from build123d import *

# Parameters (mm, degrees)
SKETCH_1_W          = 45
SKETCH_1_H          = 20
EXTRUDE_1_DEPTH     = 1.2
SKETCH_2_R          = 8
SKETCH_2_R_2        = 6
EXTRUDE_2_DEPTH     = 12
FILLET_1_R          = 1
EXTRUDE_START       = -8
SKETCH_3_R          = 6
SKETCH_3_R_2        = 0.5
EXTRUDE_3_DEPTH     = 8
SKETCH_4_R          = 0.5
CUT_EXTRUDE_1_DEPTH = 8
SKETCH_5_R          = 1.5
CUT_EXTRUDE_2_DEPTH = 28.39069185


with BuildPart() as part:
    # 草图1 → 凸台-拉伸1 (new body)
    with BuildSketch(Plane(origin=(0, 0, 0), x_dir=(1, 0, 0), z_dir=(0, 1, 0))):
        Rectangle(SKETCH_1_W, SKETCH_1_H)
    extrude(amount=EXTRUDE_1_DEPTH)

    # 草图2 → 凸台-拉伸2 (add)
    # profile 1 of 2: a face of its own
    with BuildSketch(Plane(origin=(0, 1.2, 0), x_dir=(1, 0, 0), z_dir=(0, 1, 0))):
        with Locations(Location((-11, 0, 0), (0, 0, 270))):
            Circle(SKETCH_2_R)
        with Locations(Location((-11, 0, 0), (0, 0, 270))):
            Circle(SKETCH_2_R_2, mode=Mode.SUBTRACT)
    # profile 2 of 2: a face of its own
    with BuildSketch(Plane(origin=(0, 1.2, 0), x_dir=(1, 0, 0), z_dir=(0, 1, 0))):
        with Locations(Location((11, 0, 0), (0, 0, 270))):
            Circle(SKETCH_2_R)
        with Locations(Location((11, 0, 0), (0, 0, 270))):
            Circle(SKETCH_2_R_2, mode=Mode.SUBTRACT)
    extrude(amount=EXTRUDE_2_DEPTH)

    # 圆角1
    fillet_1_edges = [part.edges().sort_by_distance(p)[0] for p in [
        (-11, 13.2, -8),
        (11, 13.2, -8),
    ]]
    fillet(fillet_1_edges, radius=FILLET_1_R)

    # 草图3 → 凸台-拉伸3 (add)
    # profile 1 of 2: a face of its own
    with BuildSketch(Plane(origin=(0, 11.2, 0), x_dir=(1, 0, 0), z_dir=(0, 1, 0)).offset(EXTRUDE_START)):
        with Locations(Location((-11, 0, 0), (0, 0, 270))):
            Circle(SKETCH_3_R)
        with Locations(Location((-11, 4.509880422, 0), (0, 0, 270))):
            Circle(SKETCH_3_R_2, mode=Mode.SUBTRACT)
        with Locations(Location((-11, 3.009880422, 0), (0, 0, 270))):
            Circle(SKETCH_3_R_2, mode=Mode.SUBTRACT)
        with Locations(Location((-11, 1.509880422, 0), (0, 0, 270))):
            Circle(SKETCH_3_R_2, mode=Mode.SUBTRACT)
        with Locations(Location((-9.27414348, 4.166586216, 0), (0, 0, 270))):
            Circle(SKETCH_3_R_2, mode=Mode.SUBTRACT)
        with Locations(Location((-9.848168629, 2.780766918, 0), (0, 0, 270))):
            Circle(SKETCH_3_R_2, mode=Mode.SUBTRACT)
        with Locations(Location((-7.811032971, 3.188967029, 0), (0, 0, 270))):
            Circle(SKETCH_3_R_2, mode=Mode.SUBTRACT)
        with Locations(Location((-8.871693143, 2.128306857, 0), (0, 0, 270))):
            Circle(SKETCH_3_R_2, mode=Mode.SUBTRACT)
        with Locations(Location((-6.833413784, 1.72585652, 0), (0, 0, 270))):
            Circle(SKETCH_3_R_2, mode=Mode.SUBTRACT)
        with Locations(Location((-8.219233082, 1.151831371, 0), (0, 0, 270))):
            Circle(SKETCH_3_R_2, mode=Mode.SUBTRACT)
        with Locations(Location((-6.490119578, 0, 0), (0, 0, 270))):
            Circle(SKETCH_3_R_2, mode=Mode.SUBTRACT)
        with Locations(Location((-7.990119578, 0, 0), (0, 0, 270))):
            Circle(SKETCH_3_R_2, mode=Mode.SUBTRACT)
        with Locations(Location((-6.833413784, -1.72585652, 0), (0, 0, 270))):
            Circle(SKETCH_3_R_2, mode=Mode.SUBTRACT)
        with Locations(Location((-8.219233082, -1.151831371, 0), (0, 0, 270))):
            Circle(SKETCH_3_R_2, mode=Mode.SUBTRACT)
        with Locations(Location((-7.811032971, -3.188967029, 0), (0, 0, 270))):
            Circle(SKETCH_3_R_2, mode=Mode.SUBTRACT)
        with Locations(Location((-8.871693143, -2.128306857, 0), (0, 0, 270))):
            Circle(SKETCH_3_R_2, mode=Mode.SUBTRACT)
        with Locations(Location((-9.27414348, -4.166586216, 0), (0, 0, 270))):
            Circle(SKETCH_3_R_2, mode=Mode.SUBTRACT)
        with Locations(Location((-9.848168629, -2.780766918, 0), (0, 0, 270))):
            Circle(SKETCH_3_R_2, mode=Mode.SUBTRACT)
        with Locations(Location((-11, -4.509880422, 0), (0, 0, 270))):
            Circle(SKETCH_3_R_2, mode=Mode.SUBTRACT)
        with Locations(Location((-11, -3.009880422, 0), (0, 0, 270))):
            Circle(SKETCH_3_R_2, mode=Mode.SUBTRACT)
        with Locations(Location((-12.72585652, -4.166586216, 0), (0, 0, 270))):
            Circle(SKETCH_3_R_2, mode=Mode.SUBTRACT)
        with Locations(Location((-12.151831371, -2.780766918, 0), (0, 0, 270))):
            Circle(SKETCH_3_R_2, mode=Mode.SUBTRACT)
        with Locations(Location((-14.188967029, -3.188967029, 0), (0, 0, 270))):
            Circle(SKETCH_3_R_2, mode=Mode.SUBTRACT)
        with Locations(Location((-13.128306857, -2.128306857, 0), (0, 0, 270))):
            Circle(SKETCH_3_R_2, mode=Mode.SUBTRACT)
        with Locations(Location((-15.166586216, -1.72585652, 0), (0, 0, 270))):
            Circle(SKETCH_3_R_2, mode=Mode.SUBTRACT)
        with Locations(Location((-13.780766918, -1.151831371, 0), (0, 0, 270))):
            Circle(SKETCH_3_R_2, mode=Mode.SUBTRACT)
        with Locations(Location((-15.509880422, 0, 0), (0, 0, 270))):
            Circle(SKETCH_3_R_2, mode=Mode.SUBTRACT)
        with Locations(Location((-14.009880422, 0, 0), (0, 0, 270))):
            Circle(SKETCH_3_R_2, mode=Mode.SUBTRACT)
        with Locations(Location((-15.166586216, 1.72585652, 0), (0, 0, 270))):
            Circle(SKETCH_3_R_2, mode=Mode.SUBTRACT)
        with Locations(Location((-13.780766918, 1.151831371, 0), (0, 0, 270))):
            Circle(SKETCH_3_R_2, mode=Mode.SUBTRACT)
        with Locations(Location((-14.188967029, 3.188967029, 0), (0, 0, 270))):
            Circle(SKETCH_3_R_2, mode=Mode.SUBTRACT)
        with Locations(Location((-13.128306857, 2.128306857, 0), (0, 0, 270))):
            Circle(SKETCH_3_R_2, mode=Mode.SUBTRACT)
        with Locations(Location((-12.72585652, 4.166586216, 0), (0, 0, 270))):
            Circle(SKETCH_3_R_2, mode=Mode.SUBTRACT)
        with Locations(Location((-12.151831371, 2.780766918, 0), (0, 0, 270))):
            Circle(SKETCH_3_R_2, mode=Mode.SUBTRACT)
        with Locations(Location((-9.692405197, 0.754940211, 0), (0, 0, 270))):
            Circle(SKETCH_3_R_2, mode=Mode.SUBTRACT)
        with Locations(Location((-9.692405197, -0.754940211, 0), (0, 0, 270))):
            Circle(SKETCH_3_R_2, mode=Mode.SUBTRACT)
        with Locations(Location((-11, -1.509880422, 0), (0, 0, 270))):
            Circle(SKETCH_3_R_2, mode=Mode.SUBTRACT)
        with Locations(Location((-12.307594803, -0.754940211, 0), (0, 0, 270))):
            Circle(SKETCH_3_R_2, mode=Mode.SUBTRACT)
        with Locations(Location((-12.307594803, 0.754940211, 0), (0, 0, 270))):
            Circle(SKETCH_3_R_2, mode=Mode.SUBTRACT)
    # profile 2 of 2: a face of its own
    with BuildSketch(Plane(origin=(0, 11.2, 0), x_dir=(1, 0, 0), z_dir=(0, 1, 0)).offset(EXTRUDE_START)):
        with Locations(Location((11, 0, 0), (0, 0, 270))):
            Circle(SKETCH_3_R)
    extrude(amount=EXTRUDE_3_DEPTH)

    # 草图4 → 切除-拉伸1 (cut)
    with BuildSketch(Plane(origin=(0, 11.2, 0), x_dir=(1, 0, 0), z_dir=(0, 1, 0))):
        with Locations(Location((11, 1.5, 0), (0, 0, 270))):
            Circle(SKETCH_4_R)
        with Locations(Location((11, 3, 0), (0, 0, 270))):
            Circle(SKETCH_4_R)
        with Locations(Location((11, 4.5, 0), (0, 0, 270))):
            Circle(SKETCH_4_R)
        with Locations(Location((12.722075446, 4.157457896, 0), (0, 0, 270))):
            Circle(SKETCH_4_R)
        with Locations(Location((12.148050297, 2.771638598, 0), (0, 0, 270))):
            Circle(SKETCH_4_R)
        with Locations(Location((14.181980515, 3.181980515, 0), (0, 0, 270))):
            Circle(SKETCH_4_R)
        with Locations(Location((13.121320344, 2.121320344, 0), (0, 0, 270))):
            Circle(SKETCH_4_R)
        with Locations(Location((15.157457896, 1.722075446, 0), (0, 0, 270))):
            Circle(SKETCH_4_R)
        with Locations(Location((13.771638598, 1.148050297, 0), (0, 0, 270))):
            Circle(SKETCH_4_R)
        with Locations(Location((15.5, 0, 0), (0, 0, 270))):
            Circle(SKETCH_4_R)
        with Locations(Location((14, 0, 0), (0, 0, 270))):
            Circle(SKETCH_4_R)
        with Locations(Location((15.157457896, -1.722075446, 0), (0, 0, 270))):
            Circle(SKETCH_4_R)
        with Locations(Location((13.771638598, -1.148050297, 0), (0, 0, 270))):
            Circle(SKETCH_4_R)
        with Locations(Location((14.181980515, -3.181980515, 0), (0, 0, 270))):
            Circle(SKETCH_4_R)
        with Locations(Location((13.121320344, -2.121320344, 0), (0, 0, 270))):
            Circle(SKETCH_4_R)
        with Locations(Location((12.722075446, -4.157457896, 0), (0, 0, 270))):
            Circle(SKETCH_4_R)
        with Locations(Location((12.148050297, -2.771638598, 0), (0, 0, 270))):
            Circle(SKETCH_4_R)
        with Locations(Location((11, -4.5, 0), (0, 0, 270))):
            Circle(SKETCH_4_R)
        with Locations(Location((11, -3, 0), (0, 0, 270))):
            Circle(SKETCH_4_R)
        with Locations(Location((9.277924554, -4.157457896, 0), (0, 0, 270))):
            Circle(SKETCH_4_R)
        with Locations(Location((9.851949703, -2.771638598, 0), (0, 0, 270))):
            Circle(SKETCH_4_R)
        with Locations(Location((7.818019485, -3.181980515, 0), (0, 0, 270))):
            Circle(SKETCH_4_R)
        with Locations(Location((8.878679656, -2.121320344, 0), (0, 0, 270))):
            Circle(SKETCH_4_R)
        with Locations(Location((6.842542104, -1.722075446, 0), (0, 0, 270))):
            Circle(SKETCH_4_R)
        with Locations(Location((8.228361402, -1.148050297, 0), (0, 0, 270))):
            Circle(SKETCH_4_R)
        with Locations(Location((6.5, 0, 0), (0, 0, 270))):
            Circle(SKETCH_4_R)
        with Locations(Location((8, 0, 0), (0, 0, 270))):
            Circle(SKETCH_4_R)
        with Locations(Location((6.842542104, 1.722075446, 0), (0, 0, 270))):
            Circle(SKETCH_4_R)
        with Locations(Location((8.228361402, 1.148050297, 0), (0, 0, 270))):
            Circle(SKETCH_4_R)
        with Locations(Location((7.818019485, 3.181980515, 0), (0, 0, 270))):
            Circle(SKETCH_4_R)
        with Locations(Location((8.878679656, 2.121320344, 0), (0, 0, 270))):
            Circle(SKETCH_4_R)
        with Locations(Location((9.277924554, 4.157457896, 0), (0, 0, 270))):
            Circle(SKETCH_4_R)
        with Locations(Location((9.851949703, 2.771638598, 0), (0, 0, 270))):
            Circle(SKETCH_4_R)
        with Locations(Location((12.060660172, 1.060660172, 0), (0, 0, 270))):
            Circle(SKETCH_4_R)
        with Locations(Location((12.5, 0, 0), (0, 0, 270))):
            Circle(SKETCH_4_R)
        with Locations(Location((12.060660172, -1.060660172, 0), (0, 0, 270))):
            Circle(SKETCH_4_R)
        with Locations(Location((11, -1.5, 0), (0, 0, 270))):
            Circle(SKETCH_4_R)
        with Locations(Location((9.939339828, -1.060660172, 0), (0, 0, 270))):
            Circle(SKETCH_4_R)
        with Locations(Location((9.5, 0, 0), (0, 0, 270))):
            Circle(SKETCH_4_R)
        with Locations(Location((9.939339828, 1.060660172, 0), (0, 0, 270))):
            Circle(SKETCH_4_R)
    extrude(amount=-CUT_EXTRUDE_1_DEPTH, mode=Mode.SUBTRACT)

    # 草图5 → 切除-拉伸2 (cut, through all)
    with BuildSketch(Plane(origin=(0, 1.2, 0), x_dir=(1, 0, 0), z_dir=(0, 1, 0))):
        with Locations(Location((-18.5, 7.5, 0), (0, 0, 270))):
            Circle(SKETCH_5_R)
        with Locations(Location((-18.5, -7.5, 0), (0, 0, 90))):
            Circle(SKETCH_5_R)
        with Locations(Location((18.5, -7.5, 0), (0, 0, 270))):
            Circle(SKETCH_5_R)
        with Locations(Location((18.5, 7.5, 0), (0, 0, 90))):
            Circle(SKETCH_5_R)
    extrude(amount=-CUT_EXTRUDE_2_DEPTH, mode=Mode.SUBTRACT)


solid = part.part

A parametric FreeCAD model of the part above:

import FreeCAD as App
import Part
import Sketcher
from FreeCAD import Vector


def edges_at(feature, points):
    """Names of the edges that pass closest to the given points."""
    edges = feature.Shape.Edges
    near = lambda p: min(range(len(edges)), key=lambda i: edges[i].distToShape(Part.Vertex(*p))[0])
    return sorted({f"Edge{near(p) + 1}" for p in points})

doc = App.newDocument("Part")
body = doc.addObject("PartDesign::Body", "Body")

# Sketch on XZ plane
sketch1 = body.newObject("Sketcher::SketchObject", "Sketch")
sketch1.AttachmentSupport = (doc.getObject("XZ_Plane"), [""])
sketch1.MapMode = "FlatFace"
sketch1.addGeometry([
    Part.LineSegment(Vector(-22, -10, 0), Vector(-22, 10, 0)),
    Part.LineSegment(Vector(-22, 10, 0), Vector(22, 10, 0)),
    Part.LineSegment(Vector(22, 10, 0), Vector(22, -10, 0)),
    Part.LineSegment(Vector(22, -10, 0), Vector(-22, -10, 0)),
], False)
sketch1.addConstraint([
    Sketcher.Constraint("Coincident", 0, 2, 1, 1),
    Sketcher.Constraint("Coincident", 1, 2, 2, 1),
    Sketcher.Constraint("Coincident", 2, 2, 3, 1),
    Sketcher.Constraint("Coincident", 3, 2, 0, 1),
    Sketcher.Constraint("Vertical", 0),
    Sketcher.Constraint("Horizontal", 1),
    Sketcher.Constraint("Vertical", 2),
    Sketcher.Constraint("Horizontal", 3),
    Sketcher.Constraint("Symmetric", 0, 2, 2, 2, -1, 1),
    Sketcher.Constraint("DistanceX", 1, 1, 1, 2, 45.0),
    Sketcher.Constraint("DistanceY", 0, 1, 0, 2, 20.0),
])
pad1 = body.newObject("PartDesign::Pad", "Pad")
pad1.Profile = sketch1
pad1.Length = 1.2
pad1.Reversed = True

# Sketch on XZ plane
sketch2 = body.newObject("Sketcher::SketchObject", "Sketch001")
sketch2.AttachmentSupport = (doc.getObject("XZ_Plane"), [""])
sketch2.MapMode = "FlatFace"
sketch2.AttachmentOffset = App.Placement(Vector(0, 0, -1.2), App.Rotation())
sketch2.addGeometry([
    Part.Circle(Vector(-11, 0, 0), Vector(0, 0, 1), 8),
    Part.Circle(Vector(-11, 0, 0), Vector(0, 0, 1), 6),
    Part.Circle(Vector(11, 0, 0), Vector(0, 0, 1), 8),
    Part.Circle(Vector(11, 0, 0), Vector(0, 0, 1), 6),
], False)
sketch2.addConstraint([
    Sketcher.Constraint("Coincident", 1, 3, 0, 3),
    Sketcher.Constraint("Coincident", 3, 3, 2, 3),
    Sketcher.Constraint("Equal", 0, 2),
    Sketcher.Constraint("Equal", 1, 3),
    Sketcher.Constraint("Symmetric", 0, 3, 2, 3, -1, 1),
    Sketcher.Constraint("PointOnObject", 0, 3, -1),
    Sketcher.Constraint("Diameter", 0, 16.0),
    Sketcher.Constraint("Diameter", 1, 12.0),
    Sketcher.Constraint("DistanceX", 0, 3, -1, 1, 11.0),
])
pad2 = body.newObject("PartDesign::Pad", "Pad001")
pad2.Profile = sketch2
pad2.Length = 12
pad2.Reversed = True
doc.recompute()

fillet = body.newObject("PartDesign::Fillet", "Fillet")
fillet.Base = (pad2, edges_at(pad2, [(-11, 13.2, -8), (11, 13.2, -8)]))
fillet.Radius = 1

# Sketch on XZ plane
sketch3 = body.newObject("Sketcher::SketchObject", "Sketch002")
sketch3.AttachmentSupport = (doc.getObject("XZ_Plane"), [""])
sketch3.MapMode = "FlatFace"
sketch3.AttachmentOffset = App.Placement(Vector(0, 0, -3.2), App.Rotation())
sketch3.addGeometry([
    Part.Circle(Vector(-11, 0, 0), Vector(0, 0, 1), 6),  # 0
    Part.Circle(Vector(-14.2, -3.2, 0), Vector(0, 0, 1), 0.5),  # 1
    Part.Circle(Vector(-15.2, -1.7, 0), Vector(0, 0, 1), 0.5),  # 2
    Part.Circle(Vector(-13.8, -1.2, 0), Vector(0, 0, 1), 0.5),  # 3
    Part.Circle(Vector(-12.7, -4.2, 0), Vector(0, 0, 1), 0.5),  # 4
    Part.Circle(Vector(-11, -4.5, 0), Vector(0, 0, 1), 0.5),  # 5
    Part.Circle(Vector(-12.2, -2.8, 0), Vector(0, 0, 1), 0.5),  # 6
    Part.Circle(Vector(-11, -3, 0), Vector(0, 0, 1), 0.5),  # 7
    Part.Circle(Vector(-13.1, -2.1, 0), Vector(0, 0, 1), 0.5),  # 8
    Part.Circle(Vector(-12.3, -0.8, 0), Vector(0, 0, 1), 0.5),  # 9
    Part.Circle(Vector(-11, -1.5, 0), Vector(0, 0, 1), 0.5),  # 10
    Part.Circle(Vector(-15.5, 0, 0), Vector(0, 0, 1), 0.5),  # 11
    Part.Circle(Vector(-15.2, 1.7, 0), Vector(0, 0, 1), 0.5),  # 12
    Part.Circle(Vector(-14, 0, 0), Vector(0, 0, 1), 0.5),  # 13
    Part.Circle(Vector(-13.8, 1.2, 0), Vector(0, 0, 1), 0.5),  # 14
    Part.Circle(Vector(-14.2, 3.2, 0), Vector(0, 0, 1), 0.5),  # 15
    Part.Circle(Vector(-12.3, 0.8, 0), Vector(0, 0, 1), 0.5),  # 16
    Part.Circle(Vector(-13.1, 2.1, 0), Vector(0, 0, 1), 0.5),  # 17
    Part.Circle(Vector(-11, 1.5, 0), Vector(0, 0, 1), 0.5),  # 18
    Part.Circle(Vector(-12.7, 4.2, 0), Vector(0, 0, 1), 0.5),  # 19
    Part.Circle(Vector(-12.2, 2.8, 0), Vector(0, 0, 1), 0.5),  # 20
    Part.Circle(Vector(-11, 3, 0), Vector(0, 0, 1), 0.5),  # 21
    Part.Circle(Vector(-9.8, -2.8, 0), Vector(0, 0, 1), 0.5),  # 22
    Part.Circle(Vector(-9.3, -4.2, 0), Vector(0, 0, 1), 0.5),  # 23
    Part.Circle(Vector(-8.9, -2.1, 0), Vector(0, 0, 1), 0.5),  # 24
    Part.Circle(Vector(-9.7, -0.8, 0), Vector(0, 0, 1), 0.5),  # 25
    Part.Circle(Vector(-7.8, -3.2, 0), Vector(0, 0, 1), 0.5),  # 26
    Part.Circle(Vector(-8.2, -1.2, 0), Vector(0, 0, 1), 0.5),  # 27
    Part.Circle(Vector(-8, 0, 0), Vector(0, 0, 1), 0.5),  # 28
    Part.Circle(Vector(-6.8, -1.7, 0), Vector(0, 0, 1), 0.5),  # 29
    Part.Circle(Vector(-6.5, 0, 0), Vector(0, 0, 1), 0.5),  # 30
    Part.Circle(Vector(-9.7, 0.8, 0), Vector(0, 0, 1), 0.5),  # 31
    Part.Circle(Vector(-8.9, 2.1, 0), Vector(0, 0, 1), 0.5),  # 32
    Part.Circle(Vector(-9.8, 2.8, 0), Vector(0, 0, 1), 0.5),  # 33
    Part.Circle(Vector(-11, 4.5, 0), Vector(0, 0, 1), 0.5),  # 34
    Part.Circle(Vector(-9.3, 4.2, 0), Vector(0, 0, 1), 0.5),  # 35
    Part.Circle(Vector(-8.2, 1.2, 0), Vector(0, 0, 1), 0.5),  # 36
    Part.Circle(Vector(-6.8, 1.7, 0), Vector(0, 0, 1), 0.5),  # 37
    Part.Circle(Vector(-7.8, 3.2, 0), Vector(0, 0, 1), 0.5),  # 38
    Part.Circle(Vector(11, 0, 0), Vector(0, 0, 1), 6),  # 39
], False)
sketch3.addConstraint([
    Sketcher.Constraint("Equal", 1, 2),
    Sketcher.Constraint("Equal", 2, 3),
    Sketcher.Constraint("Equal", 3, 4),
    Sketcher.Constraint("Equal", 4, 5),
    Sketcher.Constraint("Equal", 5, 6),
    Sketcher.Constraint("Equal", 6, 7),
    Sketcher.Constraint("Equal", 7, 8),
    Sketcher.Constraint("Equal", 8, 9),
    Sketcher.Constraint("Equal", 9, 10),
    Sketcher.Constraint("Equal", 10, 11),
    Sketcher.Constraint("Equal", 11, 12),
    Sketcher.Constraint("Equal", 12, 13),
    Sketcher.Constraint("Equal", 13, 14),
    Sketcher.Constraint("Equal", 14, 15),
    Sketcher.Constraint("Equal", 15, 16),
    Sketcher.Constraint("Equal", 16, 17),
    Sketcher.Constraint("Equal", 17, 18),
    Sketcher.Constraint("Equal", 18, 19),
    Sketcher.Constraint("Equal", 19, 20),
    Sketcher.Constraint("Equal", 20, 21),
    Sketcher.Constraint("Equal", 21, 22),
    Sketcher.Constraint("Equal", 22, 23),
    Sketcher.Constraint("Equal", 23, 24),
    Sketcher.Constraint("Equal", 24, 25),
    Sketcher.Constraint("Equal", 25, 26),
    Sketcher.Constraint("Equal", 26, 27),
    Sketcher.Constraint("Equal", 27, 28),
    Sketcher.Constraint("Equal", 28, 29),
    Sketcher.Constraint("Equal", 29, 30),
    Sketcher.Constraint("Equal", 30, 31),
    Sketcher.Constraint("Equal", 31, 32),
    Sketcher.Constraint("Equal", 32, 33),
    Sketcher.Constraint("Equal", 33, 34),
    Sketcher.Constraint("Equal", 34, 35),
    Sketcher.Constraint("Equal", 35, 36),
    Sketcher.Constraint("Equal", 36, 37),
    Sketcher.Constraint("Equal", 37, 38),
    Sketcher.Constraint("Equal", 0, 39),
    Sketcher.Constraint("Symmetric", 0, 3, 39, 3, -1, 1),
    Sketcher.Constraint("Symmetric", 2, 3, 12, 3, -1),
    Sketcher.Constraint("Symmetric", 3, 3, 14, 3, -1),
    Sketcher.Constraint("Symmetric", 1, 3, 15, 3, -1),
    Sketcher.Constraint("Symmetric", 9, 3, 16, 3, -1),
    Sketcher.Constraint("Symmetric", 8, 3, 17, 3, -1),
    Sketcher.Constraint("Symmetric", 10, 3, 18, 3, -1),
    Sketcher.Constraint("Symmetric", 4, 3, 19, 3, -1),
    Sketcher.Constraint("Symmetric", 6, 3, 20, 3, -1),
    Sketcher.Constraint("Symmetric", 7, 3, 21, 3, -1),
    Sketcher.Constraint("Symmetric", 25, 3, 31, 3, -1),
    Sketcher.Constraint("Symmetric", 24, 3, 32, 3, -1),
    Sketcher.Constraint("Symmetric", 22, 3, 33, 3, -1),
    Sketcher.Constraint("Symmetric", 5, 3, 34, 3, -1),
    Sketcher.Constraint("Symmetric", 23, 3, 35, 3, -1),
    Sketcher.Constraint("Symmetric", 27, 3, 36, 3, -1),
    Sketcher.Constraint("Symmetric", 29, 3, 37, 3, -1),
    Sketcher.Constraint("Symmetric", 26, 3, 38, 3, -1),
    Sketcher.Constraint("PointOnObject", 0, 3, -1),
    Sketcher.Constraint("PointOnObject", 11, 3, -1),
    Sketcher.Constraint("PointOnObject", 13, 3, -1),
    Sketcher.Constraint("PointOnObject", 28, 3, -1),
    Sketcher.Constraint("PointOnObject", 30, 3, -1),
    Sketcher.Constraint("Horizontal", 6, 3, 22, 3),
    Sketcher.Constraint("Horizontal", 4, 3, 23, 3),
    Sketcher.Constraint("Horizontal", 8, 3, 24, 3),
    Sketcher.Constraint("Horizontal", 9, 3, 25, 3),
    Sketcher.Constraint("Horizontal", 1, 3, 26, 3),
    Sketcher.Constraint("Horizontal", 3, 3, 27, 3),
    Sketcher.Constraint("Horizontal", 2, 3, 29, 3),
    Sketcher.Constraint("Vertical", 0, 3, 5, 3),
    Sketcher.Constraint("Vertical", 5, 3, 7, 3),
    Sketcher.Constraint("Vertical", 7, 3, 10, 3),
    Sketcher.Constraint("Diameter", 0, 12.0),
    Sketcher.Constraint("Diameter", 1, 1.0),
    Sketcher.Constraint("DistanceX", 0, 3, -1, 1, 11.0),
    Sketcher.Constraint("DistanceY", 18, 3, 34, 3, 3.0),
    Sketcher.Constraint("DistanceY", 5, 3, 7, 3, 1.5),
    Sketcher.Constraint("DistanceX", 11, 3, 13, 3, 1.5),
    Sketcher.Constraint("DistanceX", 28, 3, 30, 3, 1.5),
    Sketcher.Constraint("DistanceX", 1, 3, 3, 3, 0.4082),
    Sketcher.Constraint("DistanceY", 1, 3, 6, 3, 0.4082),
    Sketcher.Constraint("DistanceY", 3, 3, 15, 3, 4.340798),
    Sketcher.Constraint("DistanceX", 27, 3, 26, 3, 0.4082),
    Sketcher.Constraint("DistanceY", 3, 3, -1, 1, 1.151831),
    Sketcher.Constraint("DistanceY", 5, 3, -1, 1, 4.50988),
    Sketcher.Constraint("DistanceX", 6, 3, -1, 1, 12.151831),
    Sketcher.Constraint("DistanceY", 9, 3, -1, 1, 0.75494),
    Sketcher.Constraint("DistanceX", 11, 3, -1, 1, 15.50988),
    Sketcher.Constraint("DistanceX", 22, 3, -1, 1, 9.848169),
    Sketcher.Constraint("DistanceX", 28, 3, -1, 1, 7.99012),
    Sketcher.Constraint("DistanceX", 2, 3, 1, 3, 0.977619),
    Sketcher.Constraint("DistanceY", 1, 3, 2, 3, 1.463111),
    Sketcher.Constraint("DistanceX", 1, 3, 4, 3, 1.463111),
    Sketcher.Constraint("DistanceY", 4, 3, 1, 3, 0.977619),
    Sketcher.Constraint("DistanceX", 3, 3, 8, 3, 0.65246),
    Sketcher.Constraint("DistanceY", 6, 3, 8, 3, 0.65246),
    Sketcher.Constraint("DistanceX", 12, 3, 9, 3, 2.858991),
    Sketcher.Constraint("DistanceX", 23, 3, 24, 3, 0.40245),
    Sketcher.Constraint("DistanceX", 24, 3, 26, 3, 1.06066),
    Sketcher.Constraint("DistanceX", 27, 3, 29, 3, 1.385819),
    Sketcher.Constraint("DistanceX", 25, 3, 29, 3, 2.858991),
    Sketcher.Constraint("DistanceX", 1, 3, -1, 1, 14.188967),
    Sketcher.Constraint("DistanceX", 23, 3, -1, 1, 9.274143),
])
pad3 = body.newObject("PartDesign::Pad", "Pad002")
pad3.Profile = sketch3
pad3.Length = 8
pad3.Reversed = True

# Sketch on XZ plane
sketch4 = body.newObject("Sketcher::SketchObject", "Sketch003")
sketch4.AttachmentSupport = (doc.getObject("XZ_Plane"), [""])
sketch4.MapMode = "FlatFace"
sketch4.AttachmentOffset = App.Placement(Vector(0, 0, -11.2), App.Rotation())
sketch4.addGeometry([
    Part.Circle(Vector(11, -1.5, 0), Vector(0, 0, 1), 0.5),  # 0
    Part.Circle(Vector(11, -3, 0), Vector(0, 0, 1), 0.5),  # 1
    Part.Circle(Vector(11, -4.5, 0), Vector(0, 0, 1), 0.5),  # 2
    Part.Circle(Vector(12.7, -4.2, 0), Vector(0, 0, 1), 0.5),  # 3
    Part.Circle(Vector(12.1, -2.8, 0), Vector(0, 0, 1), 0.5),  # 4
    Part.Circle(Vector(14.2, -3.2, 0), Vector(0, 0, 1), 0.5),  # 5
    Part.Circle(Vector(13.1, -2.1, 0), Vector(0, 0, 1), 0.5),  # 6
    Part.Circle(Vector(15.2, -1.7, 0), Vector(0, 0, 1), 0.5),  # 7
    Part.Circle(Vector(13.8, -1.1, 0), Vector(0, 0, 1), 0.5),  # 8
    Part.Circle(Vector(15.5, 0, 0), Vector(0, 0, 1), 0.5),  # 9
    Part.Circle(Vector(14, 0, 0), Vector(0, 0, 1), 0.5),  # 10
    Part.Circle(Vector(15.2, 1.7, 0), Vector(0, 0, 1), 0.5),  # 11
    Part.Circle(Vector(13.8, 1.1, 0), Vector(0, 0, 1), 0.5),  # 12
    Part.Circle(Vector(14.2, 3.2, 0), Vector(0, 0, 1), 0.5),  # 13
    Part.Circle(Vector(13.1, 2.1, 0), Vector(0, 0, 1), 0.5),  # 14
    Part.Circle(Vector(12.7, 4.2, 0), Vector(0, 0, 1), 0.5),  # 15
    Part.Circle(Vector(12.1, 2.8, 0), Vector(0, 0, 1), 0.5),  # 16
    Part.Circle(Vector(11, 4.5, 0), Vector(0, 0, 1), 0.5),  # 17
    Part.Circle(Vector(11, 3, 0), Vector(0, 0, 1), 0.5),  # 18
    Part.Circle(Vector(9.3, 4.2, 0), Vector(0, 0, 1), 0.5),  # 19
    Part.Circle(Vector(9.9, 2.8, 0), Vector(0, 0, 1), 0.5),  # 20
    Part.Circle(Vector(7.8, 3.2, 0), Vector(0, 0, 1), 0.5),  # 21
    Part.Circle(Vector(8.9, 2.1, 0), Vector(0, 0, 1), 0.5),  # 22
    Part.Circle(Vector(6.8, 1.7, 0), Vector(0, 0, 1), 0.5),  # 23
    Part.Circle(Vector(8.2, 1.1, 0), Vector(0, 0, 1), 0.5),  # 24
    Part.Circle(Vector(6.5, 0, 0), Vector(0, 0, 1), 0.5),  # 25
    Part.Circle(Vector(8, 0, 0), Vector(0, 0, 1), 0.5),  # 26
    Part.Circle(Vector(6.8, -1.7, 0), Vector(0, 0, 1), 0.5),  # 27
    Part.Circle(Vector(8.2, -1.1, 0), Vector(0, 0, 1), 0.5),  # 28
    Part.Circle(Vector(7.8, -3.2, 0), Vector(0, 0, 1), 0.5),  # 29
    Part.Circle(Vector(8.9, -2.1, 0), Vector(0, 0, 1), 0.5),  # 30
    Part.Circle(Vector(9.3, -4.2, 0), Vector(0, 0, 1), 0.5),  # 31
    Part.Circle(Vector(9.9, -2.8, 0), Vector(0, 0, 1), 0.5),  # 32
    Part.Circle(Vector(12.1, -1.1, 0), Vector(0, 0, 1), 0.5),  # 33
    Part.Circle(Vector(12.5, 0, 0), Vector(0, 0, 1), 0.5),  # 34
    Part.Circle(Vector(12.1, 1.1, 0), Vector(0, 0, 1), 0.5),  # 35
    Part.Circle(Vector(11, 1.5, 0), Vector(0, 0, 1), 0.5),  # 36
    Part.Circle(Vector(9.9, 1.1, 0), Vector(0, 0, 1), 0.5),  # 37
    Part.Circle(Vector(9.5, 0, 0), Vector(0, 0, 1), 0.5),  # 38
    Part.Circle(Vector(9.9, -1.1, 0), Vector(0, 0, 1), 0.5),  # 39
], False)
sketch4.addConstraint([
    Sketcher.Constraint("Equal", 0, 1),
    Sketcher.Constraint("Equal", 1, 2),
    Sketcher.Constraint("Equal", 2, 3),
    Sketcher.Constraint("Equal", 3, 4),
    Sketcher.Constraint("Equal", 4, 5),
    Sketcher.Constraint("Equal", 5, 6),
    Sketcher.Constraint("Equal", 6, 7),
    Sketcher.Constraint("Equal", 7, 8),
    Sketcher.Constraint("Equal", 8, 9),
    Sketcher.Constraint("Equal", 9, 10),
    Sketcher.Constraint("Equal", 10, 11),
    Sketcher.Constraint("Equal", 11, 12),
    Sketcher.Constraint("Equal", 12, 13),
    Sketcher.Constraint("Equal", 13, 14),
    Sketcher.Constraint("Equal", 14, 15),
    Sketcher.Constraint("Equal", 15, 16),
    Sketcher.Constraint("Equal", 16, 17),
    Sketcher.Constraint("Equal", 17, 18),
    Sketcher.Constraint("Equal", 18, 19),
    Sketcher.Constraint("Equal", 19, 20),
    Sketcher.Constraint("Equal", 20, 21),
    Sketcher.Constraint("Equal", 21, 22),
    Sketcher.Constraint("Equal", 22, 23),
    Sketcher.Constraint("Equal", 23, 24),
    Sketcher.Constraint("Equal", 24, 25),
    Sketcher.Constraint("Equal", 25, 26),
    Sketcher.Constraint("Equal", 26, 27),
    Sketcher.Constraint("Equal", 27, 28),
    Sketcher.Constraint("Equal", 28, 29),
    Sketcher.Constraint("Equal", 29, 30),
    Sketcher.Constraint("Equal", 30, 31),
    Sketcher.Constraint("Equal", 31, 32),
    Sketcher.Constraint("Equal", 32, 33),
    Sketcher.Constraint("Equal", 33, 34),
    Sketcher.Constraint("Equal", 34, 35),
    Sketcher.Constraint("Equal", 35, 36),
    Sketcher.Constraint("Equal", 36, 37),
    Sketcher.Constraint("Equal", 37, 38),
    Sketcher.Constraint("Equal", 38, 39),
    Sketcher.Constraint("Symmetric", 7, 3, 11, 3, -1),
    Sketcher.Constraint("Symmetric", 8, 3, 12, 3, -1),
    Sketcher.Constraint("Symmetric", 5, 3, 13, 3, -1),
    Sketcher.Constraint("Symmetric", 6, 3, 14, 3, -1),
    Sketcher.Constraint("Symmetric", 3, 3, 15, 3, -1),
    Sketcher.Constraint("Symmetric", 4, 3, 16, 3, -1),
    Sketcher.Constraint("Symmetric", 2, 3, 17, 3, -1),
    Sketcher.Constraint("Symmetric", 1, 3, 18, 3, -1),
    Sketcher.Constraint("Symmetric", 23, 3, 27, 3, -1),
    Sketcher.Constraint("Symmetric", 24, 3, 28, 3, -1),
    Sketcher.Constraint("Symmetric", 21, 3, 29, 3, -1),
    Sketcher.Constraint("Symmetric", 22, 3, 30, 3, -1),
    Sketcher.Constraint("Symmetric", 19, 3, 31, 3, -1),
    Sketcher.Constraint("Symmetric", 20, 3, 32, 3, -1),
    Sketcher.Constraint("Symmetric", 33, 3, 35, 3, -1),
    Sketcher.Constraint("Symmetric", 0, 3, 36, 3, -1),
    Sketcher.Constraint("Symmetric", 37, 3, 39, 3, -1),
    Sketcher.Constraint("PointOnObject", 9, 3, -1),
    Sketcher.Constraint("PointOnObject", 10, 3, -1),
    Sketcher.Constraint("PointOnObject", 25, 3, -1),
    Sketcher.Constraint("PointOnObject", 26, 3, -1),
    Sketcher.Constraint("PointOnObject", 34, 3, -1),
    Sketcher.Constraint("PointOnObject", 38, 3, -1),
    Sketcher.Constraint("Horizontal", 15, 3, 19, 3),
    Sketcher.Constraint("Horizontal", 16, 3, 20, 3),
    Sketcher.Constraint("Horizontal", 13, 3, 21, 3),
    Sketcher.Constraint("Horizontal", 14, 3, 22, 3),
    Sketcher.Constraint("Horizontal", 11, 3, 23, 3),
    Sketcher.Constraint("Horizontal", 12, 3, 24, 3),
    Sketcher.Constraint("Horizontal", 35, 3, 37, 3),
    Sketcher.Constraint("Vertical", 0, 3, 1, 3),
    Sketcher.Constraint("Vertical", 1, 3, 2, 3),
    Sketcher.Constraint("Diameter", 0, 1.0),
    Sketcher.Constraint("DistanceX", -1, 1, 0, 3, 11.0),
    Sketcher.Constraint("DistanceY", 1, 3, -1, 1, 3.0),
    Sketcher.Constraint("DistanceX", -1, 1, 10, 3, 14.0),
    Sketcher.Constraint("DistanceX", -1, 1, 26, 3, 8.0),
    Sketcher.Constraint("DistanceY", 2, 3, 0, 3, 3.0),
    Sketcher.Constraint("DistanceY", 0, 3, -1, 1, 1.5),
    Sketcher.Constraint("DistanceX", -1, 1, 9, 3, 15.5),
    Sketcher.Constraint("DistanceX", -1, 1, 25, 3, 6.5),
    Sketcher.Constraint("DistanceX", -1, 1, 34, 3, 12.5),
    Sketcher.Constraint("DistanceX", -1, 1, 38, 3, 9.5),
    Sketcher.Constraint("DistanceY", 8, 3, 12, 3, 2.296101),
    Sketcher.Constraint("DistanceX", 20, 3, 16, 3, 2.296101),
    Sketcher.Constraint("DistanceX", -1, 1, 4, 3, 12.14805),
    Sketcher.Constraint("DistanceY", 4, 3, -1, 1, 2.771639),
    Sketcher.Constraint("DistanceX", -1, 1, 5, 3, 14.181981),
    Sketcher.Constraint("DistanceY", 5, 3, -1, 1, 3.181981),
    Sketcher.Constraint("DistanceX", -1, 1, 6, 3, 13.12132),
    Sketcher.Constraint("DistanceY", 6, 3, -1, 1, 2.12132),
    Sketcher.Constraint("DistanceX", -1, 1, 8, 3, 13.771639),
    Sketcher.Constraint("DistanceX", -1, 1, 21, 3, 7.818019),
    Sketcher.Constraint("DistanceX", -1, 1, 22, 3, 8.87868),
    Sketcher.Constraint("DistanceX", -1, 1, 24, 3, 8.228361),
    Sketcher.Constraint("DistanceX", -1, 1, 33, 3, 12.06066),
    Sketcher.Constraint("DistanceY", 33, 3, -1, 1, 1.06066),
    Sketcher.Constraint("DistanceX", -1, 1, 37, 3, 9.93934),
    Sketcher.Constraint("DistanceY", 3, 3, 4, 3, 1.385819),
    Sketcher.Constraint("DistanceX", 8, 3, 7, 3, 1.385819),
    Sketcher.Constraint("DistanceY", 7, 3, 11, 3, 3.444151),
    Sketcher.Constraint("DistanceX", 19, 3, 15, 3, 3.444151),
    Sketcher.Constraint("DistanceX", 23, 3, 24, 3, 1.385819),
    Sketcher.Constraint("DistanceX", -1, 1, 3, 3, 12.722075),
])
pocket1 = body.newObject("PartDesign::Pocket", "Pocket")
pocket1.Profile = sketch4
pocket1.Length = 8
pocket1.Reversed = True

# Sketch on XZ plane
sketch5 = body.newObject("Sketcher::SketchObject", "Sketch004")
sketch5.AttachmentSupport = (doc.getObject("XZ_Plane"), [""])
sketch5.MapMode = "FlatFace"
sketch5.AttachmentOffset = App.Placement(Vector(0, 0, -1.2), App.Rotation())
sketch5.addGeometry([
    Part.Circle(Vector(-18.5, -7.5, 0), Vector(0, 0, 1), 1.5),
    Part.Circle(Vector(-18.5, 7.5, 0), Vector(0, 0, 1), 1.5),
    Part.Circle(Vector(18.5, 7.5, 0), Vector(0, 0, 1), 1.5),
    Part.Circle(Vector(18.5, -7.5, 0), Vector(0, 0, 1), 1.5),
], False)
sketch5.addConstraint([
    Sketcher.Constraint("Equal", 0, 1),
    Sketcher.Constraint("Equal", 1, 2),
    Sketcher.Constraint("Equal", 2, 3),
    Sketcher.Constraint("Symmetric", 0, 3, 2, 3, -1, 1),
    Sketcher.Constraint("Symmetric", 1, 3, 3, 3, -1, 1),
    Sketcher.Constraint("Symmetric", 1, 3, 2, 3, -2),
    Sketcher.Constraint("Diameter", 0, 3.0),
    Sketcher.Constraint("DistanceY", 0, 3, 1, 3, 15.0),
    Sketcher.Constraint("DistanceX", 1, 3, 2, 3, 37.0),
])
pocket2 = body.newObject("PartDesign::Pocket", "Pocket001")
pocket2.Profile = sketch5
pocket2.Type = "ThroughAll"
pocket2.Reversed = True

doc.recompute()
